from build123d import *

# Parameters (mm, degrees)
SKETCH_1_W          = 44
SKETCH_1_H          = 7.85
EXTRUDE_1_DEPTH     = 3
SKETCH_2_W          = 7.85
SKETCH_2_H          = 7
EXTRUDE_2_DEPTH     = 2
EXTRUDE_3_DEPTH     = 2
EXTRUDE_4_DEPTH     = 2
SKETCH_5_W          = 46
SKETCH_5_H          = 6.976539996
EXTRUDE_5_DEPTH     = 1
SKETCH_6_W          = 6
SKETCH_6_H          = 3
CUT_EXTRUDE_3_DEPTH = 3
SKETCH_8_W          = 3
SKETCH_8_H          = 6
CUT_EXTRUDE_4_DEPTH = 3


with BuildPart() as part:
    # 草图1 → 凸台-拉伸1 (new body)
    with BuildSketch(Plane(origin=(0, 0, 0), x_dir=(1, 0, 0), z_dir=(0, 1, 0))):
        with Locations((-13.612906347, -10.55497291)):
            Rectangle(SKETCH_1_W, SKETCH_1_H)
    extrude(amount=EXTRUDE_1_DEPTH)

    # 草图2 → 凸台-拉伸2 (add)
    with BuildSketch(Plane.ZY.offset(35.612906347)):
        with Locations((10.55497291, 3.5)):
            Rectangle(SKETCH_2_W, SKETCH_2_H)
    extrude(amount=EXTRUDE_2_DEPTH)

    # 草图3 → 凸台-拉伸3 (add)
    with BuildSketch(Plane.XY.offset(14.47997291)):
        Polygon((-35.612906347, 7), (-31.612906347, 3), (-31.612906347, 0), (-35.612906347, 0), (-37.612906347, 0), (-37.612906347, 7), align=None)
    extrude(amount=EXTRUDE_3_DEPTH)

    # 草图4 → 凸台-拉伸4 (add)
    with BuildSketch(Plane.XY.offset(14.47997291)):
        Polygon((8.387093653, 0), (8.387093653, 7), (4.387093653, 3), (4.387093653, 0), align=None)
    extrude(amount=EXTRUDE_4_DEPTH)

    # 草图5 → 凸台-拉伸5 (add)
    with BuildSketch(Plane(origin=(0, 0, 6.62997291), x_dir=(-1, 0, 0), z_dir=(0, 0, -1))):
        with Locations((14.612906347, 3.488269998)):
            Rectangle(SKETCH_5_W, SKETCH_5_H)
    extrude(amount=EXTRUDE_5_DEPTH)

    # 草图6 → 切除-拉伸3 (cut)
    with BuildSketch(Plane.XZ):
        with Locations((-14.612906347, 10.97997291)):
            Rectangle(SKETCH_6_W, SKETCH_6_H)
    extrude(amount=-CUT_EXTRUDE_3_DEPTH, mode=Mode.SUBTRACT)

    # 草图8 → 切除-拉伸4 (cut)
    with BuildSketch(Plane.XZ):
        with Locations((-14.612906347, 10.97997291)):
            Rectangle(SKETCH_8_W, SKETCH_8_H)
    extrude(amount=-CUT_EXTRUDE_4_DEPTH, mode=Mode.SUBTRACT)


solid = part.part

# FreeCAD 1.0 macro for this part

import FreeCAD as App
import Part
import Sketcher
from FreeCAD import Vector
Q = App.Units.Quantity

doc = App.newDocument("Part")
params = doc.addObject("Spreadsheet::Sheet", "Params")
for row, (alias, value) in enumerate([
    ("sketch1_width", "44 mm"),
    ("sketch1_height", "7.85 mm"),
    ("pad1_length", "3 mm"),
    ("sketch2_width", "7 mm"),
    ("sketch2_height", "7.85 mm"),
    ("pad2_length", "2 mm"),
    ("sketch3_width", "2 mm"),
    ("sketch3_width2", "6 mm"),
    ("sketch3_height", "7 mm"),
    ("sketch3_height2", "3 mm"),
    ("pad3_length", "2 mm"),
    ("sketch4_width", "4 mm"),
    ("sketch4_height", "7 mm"),
    ("sketch4_height2", "3 mm"),
    ("pad4_length", "2 mm"),
    ("sketch5_width", "46 mm"),
    ("pad5_length", "1 mm"),
    ("sketch6_width", "6 mm"),
    ("sketch6_height", "3 mm"),
    ("pocket1_length", "3 mm"),
    ("sketch7_width", "3 mm"),
    ("sketch7_height", "6 mm"),
    ("pocket2_length", "3 mm"),
], start=1):
    params.set(f"A{row}", alias)
    params.set(f"B{row}", "=" + value)
    params.setAlias(f"B{row}", alias)

body = doc.addObject("PartDesign::Body", "Body")

# Sketch on XZ plane
sketch1 = body.newObject("Sketcher::SketchObject", "Sketch")
sketch1.AttachmentSupport = (doc.getObject("XZ_Plane"), [""])
sketch1.MapMode = "FlatFace"
sketch1.addGeometry(Part.LineSegment(Vector(-36, 7, 0), Vector(-36, 14, 0)), False)
sketch1.addGeometry(Part.LineSegment(Vector(-36, 14, 0), Vector(8, 14, 0)), False)
sketch1.addGeometry(Part.LineSegment(Vector(8, 14, 0), Vector(8, 7, 0)), False)
sketch1.addGeometry(Part.LineSegment(Vector(8, 7, 0), Vector(-36, 7, 0)), False)
sketch1.addConstraint(Sketcher.Constraint("Coincident", 0, 2, 1, 1))
sketch1.addConstraint(Sketcher.Constraint("Coincident", 1, 2, 2, 1))
sketch1.addConstraint(Sketcher.Constraint("Coincident", 2, 2, 3, 1))
sketch1.addConstraint(Sketcher.Constraint("Coincident", 3, 2, 0, 1))
sketch1.addConstraint(Sketcher.Constraint("Vertical", 0))
sketch1.addConstraint(Sketcher.Constraint("Horizontal", 1))
sketch1.addConstraint(Sketcher.Constraint("Vertical", 2))
sketch1.addConstraint(Sketcher.Constraint("Horizontal", 3))
sketch1.addConstraint(Sketcher.Constraint("DistanceX", 1, 1, 1, 2, Q("44 mm")))
sketch1.addConstraint(Sketcher.Constraint("DistanceY", 0, 1, 0, 2, Q("7.85 mm")))
sketch1.addConstraint(Sketcher.Constraint("DistanceX", 0, 2, -1, 1, Q("35.612906 mm")))
sketch1.addConstraint(Sketcher.Constraint("DistanceY", -1, 1, 0, 2, Q("14.479973 mm")))
sketch1.setExpression("Constraints[8]", "Params.sketch1_width")
sketch1.setExpression("Constraints[9]", "Params.sketch1_height")
pad1 = body.newObject("PartDesign::Pad", "Pad")
pad1.Profile = sketch1
pad1.setExpression("Length", "Params.pad1_length")
pad1.Reversed = True

# Sketch on YZ plane
sketch2 = body.newObject("Sketcher::SketchObject", "Sketch001")
sketch2.AttachmentSupport = (doc.getObject("YZ_Plane"), [""])
sketch2.MapMode = "FlatFace"
sketch2.AttachmentOffset = App.Placement(Vector(0, 0, -35.612906), App.Rotation())
sketch2.addGeometry(Part.LineSegment(Vector(7, 7, 0), Vector(0, 7, 0)), False)
sketch2.addGeometry(Part.LineSegment(Vector(0, 7, 0), Vector(0, 14, 0)), False)
sketch2.addGeometry(Part.LineSegment(Vector(0, 14, 0), Vector(7, 14, 0)), False)
sketch2.addGeometry(Part.LineSegment(Vector(7, 14, 0), Vector(7, 7, 0)), False)
sketch2.addConstraint(Sketcher.Constraint("Coincident", 0, 2, 1, 1))
sketch2.addConstraint(Sketcher.Constraint("Coincident", 1, 2, 2, 1))
sketch2.addConstraint(Sketcher.Constraint("Coincident", 2, 2, 3, 1))
sketch2.addConstraint(Sketcher.Constraint("Coincident", 3, 2, 0, 1))
sketch2.addConstraint(Sketcher.Constraint("Horizontal", 0))
sketch2.addConstraint(Sketcher.Constraint("Vertical", 1))
sketch2.addConstraint(Sketcher.Constraint("Horizontal", 2))
sketch2.addConstraint(Sketcher.Constraint("Vertical", 3))
sketch2.addConstraint(Sketcher.Constraint("PointOnObject", 0, 2, -2))
sketch2.addConstraint(Sketcher.Constraint("DistanceX", 0, 2, 0, 1, Q("7 mm")))
sketch2.addConstraint(Sketcher.Constraint("DistanceY", 1, 1, 1, 2, Q("7.85 mm")))
sketch2.addConstraint(Sketcher.Constraint("DistanceY", -1, 1, 0, 2, Q("6.629973 mm")))
sketch2.setExpression("Constraints[9]", "Params.sketch2_width")
sketch2.setExpression("Constraints[10]", "Params.sketch2_height")
pad2 = body.newObject("PartDesign::Pad", "Pad001")
pad2.Profile = sketch2
pad2.setExpression("Length", "Params.pad2_length")
pad2.Reversed = True

# Sketch on XY plane
sketch3 = body.newObject("Sketcher::SketchObject", "Sketch002")
sketch3.AttachmentSupport = (doc.getObject("XY_Plane"), [""])
sketch3.MapMode = "FlatFace"
sketch3.AttachmentOffset = App.Placement(Vector(0, 0, 14.479973), App.Rotation())
sketch3.addGeometry(Part.LineSegment(Vector(-31.6, 3, 0), Vector(-35.6, 7, 0)), False)
sketch3.addGeometry(Part.LineSegment(Vector(-35.6, 7, 0), Vector(-37.6, 7, 0)), False)
sketch3.addGeometry(Part.LineSegment(Vector(-37.6, 7, 0), Vector(-37.6, 0, 0)), False)
sketch3.addGeometry(Part.LineSegment(Vector(-37.6, 0, 0), Vector(-31.6, 0, 0)), False)
sketch3.addGeometry(Part.LineSegment(Vector(-31.6, 0, 0), Vector(-31.6, 3, 0)), False)
sketch3.addConstraint(Sketcher.Constraint("Coincident", 0, 2, 1, 1))
sketch3.addConstraint(Sketcher.Constraint("Coincident", 1, 2, 2, 1))
sketch3.addConstraint(Sketcher.Constraint("Coincident", 2, 2, 3, 1))
sketch3.addConstraint(Sketcher.Constraint("Coincident", 3, 2, 4, 1))
sketch3.addConstraint(Sketcher.Constraint("Coincident", 4, 2, 0, 1))
sketch3.addConstraint(Sketcher.Constraint("Horizontal", 1))
sketch3.addConstraint(Sketcher.Constraint("Vertical", 2))
sketch3.addConstraint(Sketcher.Constraint("Horizontal", 3))
sketch3.addConstraint(Sketcher.Constraint("Vertical", 4))
sketch3.addConstraint(Sketcher.Constraint("PointOnObject", 2, 2, -1))
sketch3.addConstraint(Sketcher.Constraint("DistanceX", 1, 2, 1, 1, Q("2 mm")))
sketch3.addConstraint(Sketcher.Constraint("DistanceX", 3, 1, 3, 2, Q("6 mm")))
sketch3.addConstraint(Sketcher.Constraint("DistanceY", 2, 2, 2, 1, Q("7 mm")))
sketch3.addConstraint(Sketcher.Constraint("DistanceY", 4, 1, 4, 2, Q("3 mm")))
sketch3.addConstraint(Sketcher.Constraint("DistanceX", 0, 2, -1, 1, Q("35.612906 mm")))
sketch3.setExpression("Constraints[10]", "Params.sketch3_width")
sketch3.setExpression("Constraints[11]", "Params.sketch3_width2")
sketch3.setExpression("Constraints[12]", "Params.sketch3_height")
sketch3.setExpression("Constraints[13]", "Params.sketch3_height2")
pad3 = body.newObject("PartDesign::Pad", "Pad002")
pad3.Profile = sketch3
pad3.setExpression("Length", "Params.pad3_length")

# Sketch on XY plane
sketch4 = body.newObject("Sketcher::SketchObject", "Sketch003")
sketch4.AttachmentSupport = (doc.getObject("XY_Plane"), [""])
sketch4.MapMode = "FlatFace"
sketch4.AttachmentOffset = App.Placement(Vector(0, 0, 14.479973), App.Rotation())
sketch4.addGeometry(Part.LineSegment(Vector(8.4, 0, 0), Vector(8.4, 7, 0)), False)
sketch4.addGeometry(Part.LineSegment(Vector(8.4, 7, 0), Vector(4.4, 3, 0)), False)
sketch4.addGeometry(Part.LineSegment(Vector(4.4, 3, 0), Vector(4.4, 0, 0)), False)
sketch4.addGeometry(Part.LineSegment(Vector(4.4, 0, 0), Vector(8.4, 0, 0)), False)
sketch4.addConstraint(Sketcher.Constraint("Coincident", 0, 2, 1, 1))
sketch4.addConstraint(Sketcher.Constraint("Coincident", 1, 2, 2, 1))
sketch4.addConstraint(Sketcher.Constraint("Coincident", 2, 2, 3, 1))
sketch4.addConstraint(Sketcher.Constraint("Coincident", 3, 2, 0, 1))
sketch4.addConstraint(Sketcher.Constraint("Vertical", 0))
sketch4.addConstraint(Sketcher.Constraint("Vertical", 2))
sketch4.addConstraint(Sketcher.Constraint("Horizontal", 3))
sketch4.addConstraint(Sketcher.Constraint("PointOnObject", 2, 2, -1))
sketch4.addConstraint(Sketcher.Constraint("DistanceX", 3, 1, 3, 2, Q("4 mm")))
sketch4.addConstraint(Sketcher.Constraint("DistanceY", 0, 1, 0, 2, Q("7 mm")))
sketch4.addConstraint(Sketcher.Constraint("DistanceY", 2, 2, 2, 1, Q("3 mm")))
sketch4.addConstraint(Sketcher.Constraint("DistanceX", -1, 1, 0, 2, Q("8.387094 mm")))
sketch4.setExpression("Constraints[8]", "Params.sketch4_width")
sketch4.setExpression("Constraints[9]", "Params.sketch4_height")
sketch4.setExpression("Constraints[10]", "Params.sketch4_height2")
pad4 = body.newObject("PartDesign::Pad", "Pad003")
pad4.Profile = sketch4
pad4.setExpression("Length", "Params.pad4_length")

# Sketch on XY plane
sketch5 = body.newObject("Sketcher::SketchObject", "Sketch004")
sketch5.AttachmentSupport = (doc.getObject("XY_Plane"), [""])
sketch5.MapMode = "FlatFace"
sketch5.AttachmentOffset = App.Placement(Vector(0, 0, 6.629973), App.Rotation())
sketch5.addGeometry(Part.LineSegment(Vector(8, 7, 0), Vector(8, 0, 0)), False)
sketch5.addGeometry(Part.LineSegment(Vector(8, 0, 0), Vector(-38, 0, 0)), False)
sketch5.addGeometry(Part.LineSegment(Vector(-38, 0, 0), Vector(-38, 7, 0)), False)
sketch5.addGeometry(Part.LineSegment(Vector(-38, 7, 0), Vector(8, 7, 0)), False)
sketch5.addConstraint(Sketcher.Constraint("Coincident", 0, 2, 1, 1))
sketch5.addConstraint(Sketcher.Constraint("Coincident", 1, 2, 2, 1))
sketch5.addConstraint(Sketcher.Constraint("Coincident", 2, 2, 3, 1))
sketch5.addConstraint(Sketcher.Constraint("Coincident", 3, 2, 0, 1))
sketch5.addConstraint(Sketcher.Constraint("Vertical", 0))
sketch5.addConstraint(Sketcher.Constraint("Horizontal", 1))
sketch5.addConstraint(Sketcher.Constraint("Vertical", 2))
sketch5.addConstraint(Sketcher.Constraint("Horizontal", 3))
sketch5.addConstraint(Sketcher.Constraint("PointOnObject", 0, 2, -1))
sketch5.addConstraint(Sketcher.Constraint("DistanceX", 1, 2, 1, 1, Q("46 mm")))
sketch5.addConstraint(Sketcher.Constraint("DistanceY", 0, 2, 0, 1, Q("6.97654 mm")))
sketch5.addConstraint(Sketcher.Constraint("DistanceX", -1, 1, 0, 2, Q("8.387094 mm")))
sketch5.setExpression("Constraints[9]", "Params.sketch5_width")
pad5 = body.newObject("PartDesign::Pad", "Pad004")
pad5.Profile = sketch5
pad5.setExpression("Length", "Params.pad5_length")
pad5.Reversed = True

# Sketch on XZ plane
sketch6 = body.newObject("Sketcher::SketchObject", "Sketch005")
sketch6.AttachmentSupport = (doc.getObject("XZ_Plane"), [""])
sketch6.MapMode = "FlatFace"
sketch6.addGeometry(Part.LineSegment(Vector(-17.6, 12.5, 0), Vector(-17.6, 9.5, 0)), False)
sketch6.addGeometry(Part.LineSegment(Vector(-17.6, 9.5, 0), Vector(-11.6, 9.5, 0)), False)
sketch6.addGeometry(Part.LineSegment(Vector(-11.6, 9.5, 0), Vector(-11.6, 12.5, 0)), False)
sketch6.addGeometry(Part.LineSegment(Vector(-11.6, 12.5, 0), Vector(-17.6, 12.5, 0)), False)
sketch6.addConstraint(Sketcher.Constraint("Coincident", 0, 2, 1, 1))
sketch6.addConstraint(Sketcher.Constraint("Coincident", 1, 2, 2, 1))
sketch6.addConstraint(Sketcher.Constraint("Coincident", 2, 2, 3, 1))
sketch6.addConstraint(Sketcher.Constraint("Coincident", 3, 2, 0, 1))
sketch6.addConstraint(Sketcher.Constraint("Vertical", 0))
sketch6.addConstraint(Sketcher.Constraint("Horizontal", 1))
sketch6.addConstraint(Sketcher.Constraint("Vertical", 2))
sketch6.addConstraint(Sketcher.Constraint("Horizontal", 3))
sketch6.addConstraint(Sketcher.Constraint("DistanceX", 1, 1, 1, 2, Q("6 mm")))
sketch6.addConstraint(Sketcher.Constraint("DistanceY", 0, 2, 0, 1, Q("3 mm")))
sketch6.addConstraint(Sketcher.Constraint("DistanceX", 0, 2, -1, 1, Q("17.612906 mm")))
sketch6.addConstraint(Sketcher.Constraint("DistanceY", -1, 1, 0, 2, Q("9.479973 mm")))
sketch6.setExpression("Constraints[8]", "Params.sketch6_width")
sketch6.setExpression("Constraints[9]", "Params.sketch6_height")
pocket1 = body.newObject("PartDesign::Pocket", "Pocket")
pocket1.Profile = sketch6
pocket1.setExpression("Length", "Params.pocket1_length")

# Sketch on XZ plane
sketch7 = body.newObject("Sketcher::SketchObject", "Sketch006")
sketch7.AttachmentSupport = (doc.getObject("XZ_Plane"), [""])
sketch7.MapMode = "FlatFace"
sketch7.addGeometry(Part.LineSegment(Vector(-16.1, 14, 0), Vector(-16.1, 8, 0)), False)
sketch7.addGeometry(Part.LineSegment(Vector(-16.1, 8, 0), Vector(-13.1, 8, 0)), False)
sketch7.addGeometry(Part.LineSegment(Vector(-13.1, 8, 0), Vector(-13.1, 14, 0)), False)
sketch7.addGeometry(Part.LineSegment(Vector(-13.1, 14, 0), Vector(-16.1, 14, 0)), False)
sketch7.addConstraint(Sketcher.Constraint("Coincident", 0, 2, 1, 1))
sketch7.addConstraint(Sketcher.Constraint("Coincident", 1, 2, 2, 1))
sketch7.addConstraint(Sketcher.Constraint("Coincident", 2, 2, 3, 1))
sketch7.addConstraint(Sketcher.Constraint("Coincident", 3, 2, 0, 1))
sketch7.addConstraint(Sketcher.Constraint("Vertical", 0))
sketch7.addConstraint(Sketcher.Constraint("Horizontal", 1))
sketch7.addConstraint(Sketcher.Constraint("Vertical", 2))
sketch7.addConstraint(Sketcher.Constraint("Horizontal", 3))
sketch7.addConstraint(Sketcher.Constraint("DistanceX", 1, 1, 1, 2, Q("3 mm")))
sketch7.addConstraint(Sketcher.Constraint("DistanceY", 0, 2, 0, 1, Q("6 mm")))
sketch7.addConstraint(Sketcher.Constraint("DistanceX", 0, 2, -1, 1, Q("16.112906 mm")))
sketch7.addConstraint(Sketcher.Constraint("DistanceY", -1, 1, 0, 2, Q("7.979973 mm")))
sketch7.setExpression("Constraints[8]", "Params.sketch7_width")
sketch7.setExpression("Constraints[9]", "Params.sketch7_height")
pocket2 = body.newObject("PartDesign::Pocket", "Pocket001")
pocket2.Profile = sketch7
pocket2.setExpression("Length", "Params.pocket2_length")

doc.recompute()
